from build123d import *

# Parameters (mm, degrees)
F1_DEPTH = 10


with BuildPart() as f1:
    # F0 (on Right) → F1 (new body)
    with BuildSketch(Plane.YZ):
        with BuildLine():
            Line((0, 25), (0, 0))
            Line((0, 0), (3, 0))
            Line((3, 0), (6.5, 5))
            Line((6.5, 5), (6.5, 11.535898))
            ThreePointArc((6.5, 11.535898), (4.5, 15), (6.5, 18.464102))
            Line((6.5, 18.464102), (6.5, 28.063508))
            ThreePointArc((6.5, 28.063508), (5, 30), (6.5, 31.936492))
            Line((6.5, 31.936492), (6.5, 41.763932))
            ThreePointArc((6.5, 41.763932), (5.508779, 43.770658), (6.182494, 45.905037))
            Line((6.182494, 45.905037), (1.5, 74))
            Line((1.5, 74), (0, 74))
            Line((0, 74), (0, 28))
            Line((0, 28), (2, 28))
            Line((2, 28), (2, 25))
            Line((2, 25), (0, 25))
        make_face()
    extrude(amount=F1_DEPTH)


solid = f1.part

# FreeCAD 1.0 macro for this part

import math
import FreeCAD as App
import Part
import Sketcher

V = App.Vector

doc = App.newDocument("Part")
body = doc.addObject("PartDesign::Body", "Body")

sketch1 = body.newObject("Sketcher::SketchObject", "Sketch")
sketch1.AttachmentSupport = (doc.getObject("YZ_Plane"), [""])
sketch1.MapMode = "FlatFace"
sketch1.addGeometry([
    Part.LineSegment(V(0, 25, 0), V(0, 0, 0)),
    Part.LineSegment(V(0, 0, 0), V(3, 0, 0)),
    Part.LineSegment(V(3, 0, 0), V(6.5, 5, 0)),
    Part.LineSegment(V(6.5, 5, 0), V(6.5, 11.5, 0)),
    Part.ArcOfCircle(Part.Circle(V(8.5, 15, 0), V(0, 0, 1), 4), math.radians(120), math.radians(240)),
    Part.LineSegment(V(6.5, 18.5, 0), V(6.5, 28.1, 0)),
    Part.ArcOfCircle(Part.Circle(V(7, 30, 0), V(0, 0, 1), 2), math.radians(104), math.radians(256)),
    Part.LineSegment(V(6.5, 31.9, 0), V(6.5, 41.8, 0)),
    Part.ArcOfCircle(Part.Circle(V(8.5, 44, 0), V(0, 0, 1), 3), math.radians(141), math.radians(228)),
    Part.LineSegment(V(6.2, 45.9, 0), V(1.5, 74, 0)),
    Part.LineSegment(V(1.5, 74, 0), V(0, 74, 0)),
    Part.LineSegment(V(0, 74, 0), V(0, 28, 0)),
    Part.LineSegment(V(0, 28, 0), V(2, 28, 0)),
    Part.LineSegment(V(2, 28, 0), V(2, 25, 0)),
    Part.LineSegment(V(2, 25, 0), V(0, 25, 0)),
], False)
sketch1.addConstraint([
    Sketcher.Constraint("Coincident", 0, 2, 1, 1),
    Sketcher.Constraint("Coincident", 1, 2, 2, 1),
    Sketcher.Constraint("Coincident", 2, 2, 3, 1),
    Sketcher.Constraint("Coincident", 3, 2, 4, 2),
    Sketcher.Constraint("Coincident", 4, 1, 5, 1),
    Sketcher.Constraint("Coincident", 5, 2, 6, 2),
    Sketcher.Constraint("Coincident", 6, 1, 7, 1),
    Sketcher.Constraint("Coincident", 7, 2, 8, 2),
    Sketcher.Constraint("Coincident", 8, 1, 9, 1),
    Sketcher.Constraint("Coincident", 9, 2, 10, 1),
    Sketcher.Constraint("Coincident", 10, 2, 11, 1),
    Sketcher.Constraint("Coincident", 11, 2, 12, 1),
    Sketcher.Constraint("Coincident", 12, 2, 13, 1),
    Sketcher.Constraint("Coincident", 13, 2, 14, 1),
    Sketcher.Constraint("Coincident", 14, 2, 0, 1),
    Sketcher.Constraint("Vertical", 0),
    Sketcher.Constraint("Horizontal", 1),
    Sketcher.Constraint("Vertical", 3),
    Sketcher.Constraint("Vertical", 5),
    Sketcher.Constraint("Vertical", 7),
    Sketcher.Constraint("Horizontal", 10),
    Sketcher.Constraint("Vertical", 11),
    Sketcher.Constraint("Horizontal", 12),
    Sketcher.Constraint("Vertical", 13),
    Sketcher.Constraint("Horizontal", 14),
    Sketcher.Constraint("Coincident", 0, 2, -1, 1),
    Sketcher.Constraint("PointOnObject", 10, 2, -2),
    Sketcher.Constraint("Vertical", 4, 3, 8, 3),
    Sketcher.Constraint("Vertical", 3, 2, 4, 1),
    Sketcher.Constraint("Vertical", 5, 2, 6, 1),
    Sketcher.Constraint("Equal", 1, 13),
    Sketcher.Constraint("Radius", 4, 4.000001),
    Sketcher.Constraint("Radius", 6, 2.0),
    Sketcher.Constraint("Radius", 8, 3.0),
    Sketcher.Constraint("DistanceX", 1, 1, 1, 2, 3.0),
    Sketcher.Constraint("DistanceX", 12, 1, 12, 2, 2.0),
    Sketcher.Constraint("DistanceY", 0, 2, 0, 1, 25.0),
    Sketcher.Constraint("DistanceY", 11, 2, 11, 1, 46.0),
    Sketcher.Constraint("DistanceX", 10, 2, 10, 1, 1.5),
    Sketcher.Constraint("DistanceY", -1, 1, 4, 3, 15.0),
    Sketcher.Constraint("DistanceX", -1, 1, 6, 3, 7.0),
    Sketcher.Constraint("DistanceY", -1, 1, 6, 3, 30.0),
    Sketcher.Constraint("DistanceY", -1, 1, 8, 3, 44.0),
    Sketcher.Constraint("DistanceY", -1, 1, 2, 2, 5.0),
    Sketcher.Constraint("DistanceX", 2, 2, 4, 3, 2.000001),
    Sketcher.Constraint("DistanceX", 9, 2, 8, 3, 7.0),
    Sketcher.Constraint("Distance", 9, 28.482498),
])
pad1 = body.newObject("PartDesign::Pad", "Pad")
pad1.Profile = sketch1
pad1.Length = 10

doc.recompute()
